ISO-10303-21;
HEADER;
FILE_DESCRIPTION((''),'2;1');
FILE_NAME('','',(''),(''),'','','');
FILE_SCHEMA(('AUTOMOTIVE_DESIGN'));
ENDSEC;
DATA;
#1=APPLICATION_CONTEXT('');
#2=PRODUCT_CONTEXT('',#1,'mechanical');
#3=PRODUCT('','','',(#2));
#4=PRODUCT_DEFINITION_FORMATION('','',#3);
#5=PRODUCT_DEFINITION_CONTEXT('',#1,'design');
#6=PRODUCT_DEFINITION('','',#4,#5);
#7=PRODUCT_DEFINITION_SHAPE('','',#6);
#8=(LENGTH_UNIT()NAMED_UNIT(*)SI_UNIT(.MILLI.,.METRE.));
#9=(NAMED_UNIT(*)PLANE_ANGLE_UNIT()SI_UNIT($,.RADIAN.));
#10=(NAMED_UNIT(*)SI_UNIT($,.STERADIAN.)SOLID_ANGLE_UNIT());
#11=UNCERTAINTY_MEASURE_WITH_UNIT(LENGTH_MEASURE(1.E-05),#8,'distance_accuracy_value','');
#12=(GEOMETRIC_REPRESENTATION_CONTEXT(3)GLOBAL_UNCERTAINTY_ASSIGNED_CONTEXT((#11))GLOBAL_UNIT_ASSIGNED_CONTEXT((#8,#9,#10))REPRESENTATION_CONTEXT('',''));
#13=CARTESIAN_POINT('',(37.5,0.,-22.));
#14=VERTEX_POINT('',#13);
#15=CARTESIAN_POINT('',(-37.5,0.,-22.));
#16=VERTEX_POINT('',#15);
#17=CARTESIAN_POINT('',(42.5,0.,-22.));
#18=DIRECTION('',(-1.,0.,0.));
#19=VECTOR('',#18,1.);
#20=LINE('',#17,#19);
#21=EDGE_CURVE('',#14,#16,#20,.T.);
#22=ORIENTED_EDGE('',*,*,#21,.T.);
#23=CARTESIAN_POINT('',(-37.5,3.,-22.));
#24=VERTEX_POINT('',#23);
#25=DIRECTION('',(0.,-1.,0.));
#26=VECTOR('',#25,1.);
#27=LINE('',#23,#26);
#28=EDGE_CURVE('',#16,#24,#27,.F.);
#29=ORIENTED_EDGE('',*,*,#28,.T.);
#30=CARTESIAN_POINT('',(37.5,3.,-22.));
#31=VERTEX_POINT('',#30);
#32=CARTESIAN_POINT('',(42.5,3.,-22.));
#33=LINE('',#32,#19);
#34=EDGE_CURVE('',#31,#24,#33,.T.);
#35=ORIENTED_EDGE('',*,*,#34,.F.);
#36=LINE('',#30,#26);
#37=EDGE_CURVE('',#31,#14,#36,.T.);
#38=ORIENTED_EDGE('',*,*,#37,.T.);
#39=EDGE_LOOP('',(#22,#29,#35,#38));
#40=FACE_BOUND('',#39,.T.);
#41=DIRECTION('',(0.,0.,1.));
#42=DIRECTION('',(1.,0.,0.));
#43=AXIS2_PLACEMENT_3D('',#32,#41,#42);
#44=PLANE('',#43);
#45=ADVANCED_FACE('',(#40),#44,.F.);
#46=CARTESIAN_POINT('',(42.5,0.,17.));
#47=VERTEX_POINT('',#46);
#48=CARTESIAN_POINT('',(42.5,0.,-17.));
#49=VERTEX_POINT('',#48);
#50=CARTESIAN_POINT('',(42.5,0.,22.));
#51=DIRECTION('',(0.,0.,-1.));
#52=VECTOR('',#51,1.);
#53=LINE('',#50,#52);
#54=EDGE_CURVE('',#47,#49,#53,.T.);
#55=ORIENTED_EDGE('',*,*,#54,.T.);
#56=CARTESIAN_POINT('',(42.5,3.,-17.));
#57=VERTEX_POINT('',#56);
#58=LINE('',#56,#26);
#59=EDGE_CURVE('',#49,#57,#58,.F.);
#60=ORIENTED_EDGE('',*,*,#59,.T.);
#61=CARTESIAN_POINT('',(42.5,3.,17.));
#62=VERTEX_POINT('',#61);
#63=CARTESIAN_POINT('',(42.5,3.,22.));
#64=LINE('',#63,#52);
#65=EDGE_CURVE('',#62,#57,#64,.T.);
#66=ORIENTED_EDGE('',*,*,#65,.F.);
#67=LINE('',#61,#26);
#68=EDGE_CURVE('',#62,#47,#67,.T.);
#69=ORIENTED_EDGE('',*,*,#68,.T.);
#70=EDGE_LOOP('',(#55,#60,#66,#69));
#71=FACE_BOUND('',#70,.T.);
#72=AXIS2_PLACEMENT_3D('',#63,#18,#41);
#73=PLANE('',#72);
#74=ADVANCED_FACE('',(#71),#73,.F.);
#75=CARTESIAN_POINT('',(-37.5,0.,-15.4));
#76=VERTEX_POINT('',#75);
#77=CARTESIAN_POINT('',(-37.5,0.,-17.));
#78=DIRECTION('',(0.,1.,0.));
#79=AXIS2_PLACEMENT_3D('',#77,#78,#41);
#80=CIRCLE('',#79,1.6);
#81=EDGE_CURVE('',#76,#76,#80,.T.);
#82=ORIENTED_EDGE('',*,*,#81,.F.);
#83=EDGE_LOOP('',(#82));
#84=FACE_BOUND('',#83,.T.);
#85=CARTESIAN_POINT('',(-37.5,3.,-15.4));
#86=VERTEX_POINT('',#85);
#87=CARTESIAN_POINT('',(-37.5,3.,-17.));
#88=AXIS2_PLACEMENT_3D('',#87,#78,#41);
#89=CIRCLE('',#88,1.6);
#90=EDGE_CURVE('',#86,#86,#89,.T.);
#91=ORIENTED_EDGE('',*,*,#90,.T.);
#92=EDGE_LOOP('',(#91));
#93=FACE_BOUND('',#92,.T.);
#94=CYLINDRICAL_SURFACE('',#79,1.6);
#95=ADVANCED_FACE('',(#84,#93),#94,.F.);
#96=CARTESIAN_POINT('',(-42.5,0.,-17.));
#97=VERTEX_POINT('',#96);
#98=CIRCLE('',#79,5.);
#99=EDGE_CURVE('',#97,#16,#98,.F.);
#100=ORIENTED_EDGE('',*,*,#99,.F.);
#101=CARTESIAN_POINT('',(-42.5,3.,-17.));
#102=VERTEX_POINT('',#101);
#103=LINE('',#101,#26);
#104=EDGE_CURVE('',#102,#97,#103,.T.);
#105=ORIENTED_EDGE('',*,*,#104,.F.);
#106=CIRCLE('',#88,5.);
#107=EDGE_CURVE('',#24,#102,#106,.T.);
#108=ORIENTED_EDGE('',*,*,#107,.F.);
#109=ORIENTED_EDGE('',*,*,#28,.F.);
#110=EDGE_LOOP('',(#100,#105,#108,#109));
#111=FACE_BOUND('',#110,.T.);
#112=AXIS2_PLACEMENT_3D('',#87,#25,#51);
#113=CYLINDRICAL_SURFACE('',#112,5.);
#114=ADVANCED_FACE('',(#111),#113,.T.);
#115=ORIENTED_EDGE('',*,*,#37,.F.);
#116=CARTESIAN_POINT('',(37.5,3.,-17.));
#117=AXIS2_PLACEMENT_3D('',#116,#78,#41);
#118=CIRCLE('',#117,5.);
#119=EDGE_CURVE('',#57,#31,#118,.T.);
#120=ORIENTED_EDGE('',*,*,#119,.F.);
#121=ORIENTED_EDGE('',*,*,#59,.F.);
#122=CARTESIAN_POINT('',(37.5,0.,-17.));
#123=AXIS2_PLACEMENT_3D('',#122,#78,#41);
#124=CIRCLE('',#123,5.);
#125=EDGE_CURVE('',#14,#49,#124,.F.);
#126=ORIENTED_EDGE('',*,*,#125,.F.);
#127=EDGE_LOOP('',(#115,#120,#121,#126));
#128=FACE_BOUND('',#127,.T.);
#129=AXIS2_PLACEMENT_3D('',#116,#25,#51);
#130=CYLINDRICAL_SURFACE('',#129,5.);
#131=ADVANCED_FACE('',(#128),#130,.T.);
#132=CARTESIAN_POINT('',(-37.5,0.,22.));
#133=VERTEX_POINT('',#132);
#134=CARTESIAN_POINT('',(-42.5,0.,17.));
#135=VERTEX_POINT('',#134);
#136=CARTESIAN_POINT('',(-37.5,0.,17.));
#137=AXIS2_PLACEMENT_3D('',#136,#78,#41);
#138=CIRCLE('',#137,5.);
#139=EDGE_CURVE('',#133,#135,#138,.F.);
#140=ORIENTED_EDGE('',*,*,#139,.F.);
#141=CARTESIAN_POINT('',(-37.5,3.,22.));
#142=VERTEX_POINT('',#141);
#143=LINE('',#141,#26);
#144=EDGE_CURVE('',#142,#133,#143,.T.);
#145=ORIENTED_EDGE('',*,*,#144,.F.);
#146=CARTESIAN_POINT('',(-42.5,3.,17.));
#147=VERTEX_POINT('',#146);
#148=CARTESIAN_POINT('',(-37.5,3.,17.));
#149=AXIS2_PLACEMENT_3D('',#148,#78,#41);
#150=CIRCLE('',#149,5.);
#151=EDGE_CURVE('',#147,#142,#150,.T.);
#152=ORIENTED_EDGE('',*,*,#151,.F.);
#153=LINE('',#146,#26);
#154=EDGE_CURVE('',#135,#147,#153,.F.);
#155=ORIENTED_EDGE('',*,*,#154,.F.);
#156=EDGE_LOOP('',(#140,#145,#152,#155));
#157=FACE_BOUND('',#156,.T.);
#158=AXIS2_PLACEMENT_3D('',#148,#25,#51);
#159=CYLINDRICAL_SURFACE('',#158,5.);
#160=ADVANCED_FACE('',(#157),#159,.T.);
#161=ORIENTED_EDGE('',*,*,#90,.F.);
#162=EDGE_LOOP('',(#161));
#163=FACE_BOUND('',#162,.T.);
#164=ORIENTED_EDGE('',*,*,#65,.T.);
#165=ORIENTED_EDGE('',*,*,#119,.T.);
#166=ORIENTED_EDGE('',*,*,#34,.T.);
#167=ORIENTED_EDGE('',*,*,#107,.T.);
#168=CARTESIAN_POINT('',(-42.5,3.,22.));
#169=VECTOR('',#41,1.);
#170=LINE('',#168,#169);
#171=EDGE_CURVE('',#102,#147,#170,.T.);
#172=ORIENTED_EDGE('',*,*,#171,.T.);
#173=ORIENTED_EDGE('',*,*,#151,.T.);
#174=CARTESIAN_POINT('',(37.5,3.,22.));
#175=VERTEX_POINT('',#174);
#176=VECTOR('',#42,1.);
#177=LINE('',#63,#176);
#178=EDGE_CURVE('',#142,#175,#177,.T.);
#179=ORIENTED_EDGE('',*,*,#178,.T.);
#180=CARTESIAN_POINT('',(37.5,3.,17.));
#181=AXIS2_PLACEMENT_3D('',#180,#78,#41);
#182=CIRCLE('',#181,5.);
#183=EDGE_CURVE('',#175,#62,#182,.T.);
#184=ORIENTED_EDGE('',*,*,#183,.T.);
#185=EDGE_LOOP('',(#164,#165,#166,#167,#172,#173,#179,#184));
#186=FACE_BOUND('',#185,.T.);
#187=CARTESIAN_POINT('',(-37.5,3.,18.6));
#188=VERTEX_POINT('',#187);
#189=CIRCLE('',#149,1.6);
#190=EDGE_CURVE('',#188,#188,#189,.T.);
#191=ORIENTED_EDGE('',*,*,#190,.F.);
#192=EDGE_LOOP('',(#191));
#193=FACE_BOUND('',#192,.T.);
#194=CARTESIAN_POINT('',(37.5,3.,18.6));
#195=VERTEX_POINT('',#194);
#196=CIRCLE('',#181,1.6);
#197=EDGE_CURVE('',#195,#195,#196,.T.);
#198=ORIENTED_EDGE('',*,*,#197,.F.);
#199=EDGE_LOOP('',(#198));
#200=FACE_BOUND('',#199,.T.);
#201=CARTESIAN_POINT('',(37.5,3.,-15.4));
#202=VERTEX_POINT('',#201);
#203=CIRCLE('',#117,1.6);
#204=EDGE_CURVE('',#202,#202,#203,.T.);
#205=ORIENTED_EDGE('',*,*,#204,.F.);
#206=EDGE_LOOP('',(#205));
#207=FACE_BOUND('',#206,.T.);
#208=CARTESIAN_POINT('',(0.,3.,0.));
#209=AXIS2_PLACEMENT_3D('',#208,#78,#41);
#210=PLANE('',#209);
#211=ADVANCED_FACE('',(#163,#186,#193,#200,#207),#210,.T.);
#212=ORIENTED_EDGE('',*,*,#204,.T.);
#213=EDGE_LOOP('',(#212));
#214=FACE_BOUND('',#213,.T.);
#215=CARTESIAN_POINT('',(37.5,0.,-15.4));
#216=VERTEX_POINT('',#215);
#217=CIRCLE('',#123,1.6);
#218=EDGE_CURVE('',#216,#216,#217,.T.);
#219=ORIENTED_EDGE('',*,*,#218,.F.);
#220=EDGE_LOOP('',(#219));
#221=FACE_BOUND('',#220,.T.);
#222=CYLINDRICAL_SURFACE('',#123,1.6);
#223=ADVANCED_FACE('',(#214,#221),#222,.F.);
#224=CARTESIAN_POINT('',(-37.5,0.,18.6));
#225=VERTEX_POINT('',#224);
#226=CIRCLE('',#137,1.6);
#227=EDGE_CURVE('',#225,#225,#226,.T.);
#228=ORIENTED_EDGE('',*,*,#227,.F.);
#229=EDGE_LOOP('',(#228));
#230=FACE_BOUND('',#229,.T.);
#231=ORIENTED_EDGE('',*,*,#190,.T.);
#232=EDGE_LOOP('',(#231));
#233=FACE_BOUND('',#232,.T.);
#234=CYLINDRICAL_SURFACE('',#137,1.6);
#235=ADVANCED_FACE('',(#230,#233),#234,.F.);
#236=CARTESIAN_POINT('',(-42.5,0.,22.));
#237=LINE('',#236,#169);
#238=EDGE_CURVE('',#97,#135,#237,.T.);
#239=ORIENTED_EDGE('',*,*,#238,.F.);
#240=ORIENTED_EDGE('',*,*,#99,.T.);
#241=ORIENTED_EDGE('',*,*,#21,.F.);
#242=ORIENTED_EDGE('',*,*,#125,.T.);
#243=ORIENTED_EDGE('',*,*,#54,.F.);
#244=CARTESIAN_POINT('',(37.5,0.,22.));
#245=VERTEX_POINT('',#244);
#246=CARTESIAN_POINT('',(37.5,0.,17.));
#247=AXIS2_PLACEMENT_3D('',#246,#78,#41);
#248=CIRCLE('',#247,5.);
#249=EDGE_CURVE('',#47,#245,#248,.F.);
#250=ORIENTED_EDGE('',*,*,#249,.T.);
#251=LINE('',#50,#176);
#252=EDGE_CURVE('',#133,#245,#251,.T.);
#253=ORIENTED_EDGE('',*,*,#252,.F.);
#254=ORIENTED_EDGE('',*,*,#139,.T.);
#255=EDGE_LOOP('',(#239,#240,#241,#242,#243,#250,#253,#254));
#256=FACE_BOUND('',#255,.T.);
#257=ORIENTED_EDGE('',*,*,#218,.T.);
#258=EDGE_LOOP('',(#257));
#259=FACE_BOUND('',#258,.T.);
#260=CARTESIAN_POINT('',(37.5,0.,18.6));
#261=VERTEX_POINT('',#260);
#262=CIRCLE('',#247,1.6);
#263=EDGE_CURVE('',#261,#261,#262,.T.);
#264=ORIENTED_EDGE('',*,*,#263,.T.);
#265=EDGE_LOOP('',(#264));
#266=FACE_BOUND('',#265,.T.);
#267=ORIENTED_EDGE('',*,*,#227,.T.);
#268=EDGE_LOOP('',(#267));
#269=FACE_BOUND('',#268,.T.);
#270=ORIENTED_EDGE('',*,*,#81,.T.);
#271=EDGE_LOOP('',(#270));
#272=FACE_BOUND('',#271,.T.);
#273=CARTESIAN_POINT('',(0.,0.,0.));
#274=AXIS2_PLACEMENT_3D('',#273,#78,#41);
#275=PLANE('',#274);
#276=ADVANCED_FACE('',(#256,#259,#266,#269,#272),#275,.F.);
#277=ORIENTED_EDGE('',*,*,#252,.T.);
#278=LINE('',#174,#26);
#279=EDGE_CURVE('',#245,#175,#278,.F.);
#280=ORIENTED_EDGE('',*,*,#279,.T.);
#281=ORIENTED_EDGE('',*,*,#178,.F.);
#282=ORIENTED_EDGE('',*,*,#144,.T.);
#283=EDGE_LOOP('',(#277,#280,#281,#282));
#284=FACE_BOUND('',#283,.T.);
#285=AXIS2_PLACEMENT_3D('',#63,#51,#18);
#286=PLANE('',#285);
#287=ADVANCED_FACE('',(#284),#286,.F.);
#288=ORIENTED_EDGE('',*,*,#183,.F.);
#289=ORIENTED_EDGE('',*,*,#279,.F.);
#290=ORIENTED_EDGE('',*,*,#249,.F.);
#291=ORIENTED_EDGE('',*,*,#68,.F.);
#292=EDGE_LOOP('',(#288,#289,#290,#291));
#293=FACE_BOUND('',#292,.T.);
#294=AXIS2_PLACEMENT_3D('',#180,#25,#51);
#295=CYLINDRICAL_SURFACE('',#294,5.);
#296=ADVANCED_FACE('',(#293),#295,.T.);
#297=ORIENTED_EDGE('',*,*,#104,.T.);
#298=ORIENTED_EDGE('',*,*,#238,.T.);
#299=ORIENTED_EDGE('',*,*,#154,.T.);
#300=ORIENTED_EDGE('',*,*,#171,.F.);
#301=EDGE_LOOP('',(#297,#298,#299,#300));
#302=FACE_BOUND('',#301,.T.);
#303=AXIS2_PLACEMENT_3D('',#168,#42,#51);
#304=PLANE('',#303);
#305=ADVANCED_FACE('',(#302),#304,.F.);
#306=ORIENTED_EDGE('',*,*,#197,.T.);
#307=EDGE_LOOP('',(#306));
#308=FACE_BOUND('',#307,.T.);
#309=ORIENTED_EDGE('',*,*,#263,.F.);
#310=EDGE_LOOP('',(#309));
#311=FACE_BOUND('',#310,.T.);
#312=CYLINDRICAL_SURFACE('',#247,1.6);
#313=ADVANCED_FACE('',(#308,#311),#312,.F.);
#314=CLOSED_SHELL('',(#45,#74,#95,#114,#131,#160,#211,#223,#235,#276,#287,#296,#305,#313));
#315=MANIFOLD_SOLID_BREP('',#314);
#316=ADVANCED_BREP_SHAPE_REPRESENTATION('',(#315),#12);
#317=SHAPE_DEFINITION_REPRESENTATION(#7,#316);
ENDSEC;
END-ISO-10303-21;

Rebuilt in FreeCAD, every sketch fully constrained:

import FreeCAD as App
import Part
import Sketcher
from FreeCAD import Vector


def edges_at(feature, points):
    """Names of the edges that pass closest to the given points."""
    edges = feature.Shape.Edges
    near = lambda p: min(range(len(edges)), key=lambda i: edges[i].distToShape(Part.Vertex(*p))[0])
    return sorted({f"Edge{near(p) + 1}" for p in points})

doc = App.newDocument("Part")
body = doc.addObject("PartDesign::Body", "Body")

# Sketch on XZ plane
sketch1 = doc.addObject("Sketcher::SketchObject", "Sketch")
body.addObject(sketch1)
sketch1.AttachmentSupport = (doc.XZ_Plane, [""])
sketch1.MapMode = "FlatFace"
sketch1.addGeometry(Part.LineSegment(Vector(-42, -22, 0), Vector(-42, 22, 0)), False)
sketch1.addGeometry(Part.LineSegment(Vector(-42, 22, 0), Vector(42, 22, 0)), False)
sketch1.addGeometry(Part.LineSegment(Vector(42, 22, 0), Vector(42, -22, 0)), False)
sketch1.addGeometry(Part.LineSegment(Vector(42, -22, 0), Vector(-42, -22, 0)), False)
sketch1.addConstraint(Sketcher.Constraint("Coincident", 0, 2, 1, 1))
sketch1.addConstraint(Sketcher.Constraint("Coincident", 1, 2, 2, 1))
sketch1.addConstraint(Sketcher.Constraint("Coincident", 2, 2, 3, 1))
sketch1.addConstraint(Sketcher.Constraint("Coincident", 3, 2, 0, 1))
sketch1.addConstraint(Sketcher.Constraint("Vertical", 0))
sketch1.addConstraint(Sketcher.Constraint("Horizontal", 1))
sketch1.addConstraint(Sketcher.Constraint("Vertical", 2))
sketch1.addConstraint(Sketcher.Constraint("Horizontal", 3))
sketch1.addConstraint(Sketcher.Constraint("Symmetric", 0, 2, 2, 2, -1, 1))
sketch1.addConstraint(Sketcher.Constraint("DistanceX", 1, 1, 1, 2, 85.0))
sketch1.addConstraint(Sketcher.Constraint("DistanceY", 0, 1, 0, 2, 44.0))
pad1 = doc.addObject("PartDesign::Pad", "Pad")
body.addObject(pad1)
pad1.Profile = sketch1
pad1.Length = 3
pad1.Reversed = True

# Sketch on XZ plane
sketch2 = doc.addObject("Sketcher::SketchObject", "Sketch001")
body.addObject(sketch2)
sketch2.AttachmentSupport = (doc.XZ_Plane, [""])
sketch2.MapMode = "FlatFace"
sketch2.AttachmentOffset = App.Placement(Vector(0, 0, -3), App.Rotation())
sketch2.addGeometry(Part.Circle(Vector(-37.5, -17, 0), Vector(0, 0, 1), 1.6), False)
sketch2.addGeometry(Part.Circle(Vector(-37.5, 17, 0), Vector(0, 0, 1), 1.6), False)
sketch2.addGeometry(Part.Circle(Vector(37.5, -17, 0), Vector(0, 0, 1), 1.6), False)
sketch2.addGeometry(Part.Circle(Vector(37.5, 17, 0), Vector(0, 0, 1), 1.6), False)
sketch2.addConstraint(Sketcher.Constraint("Equal", 0, 1))
sketch2.addConstraint(Sketcher.Constraint("Equal", 1, 2))
sketch2.addConstraint(Sketcher.Constraint("Equal", 2, 3))
sketch2.addConstraint(Sketcher.Constraint("Symmetric", 1, 3, 2, 3, -1, 1))
sketch2.addConstraint(Sketcher.Constraint("Symmetric", 0, 3, 3, 3, -1, 1))
sketch2.addConstraint(Sketcher.Constraint("Symmetric", 0, 3, 2, 3, -2))
sketch2.addConstraint(Sketcher.Constraint("Diameter", 0, 3.2))
sketch2.addConstraint(Sketcher.Constraint("DistanceY", 0, 3, -1, 1, 17.0))
sketch2.addConstraint(Sketcher.Constraint("DistanceX", 0, 3, 2, 3, 75.0))
pocket1 = doc.addObject("PartDesign::Pocket", "Pocket")
body.addObject(pocket1)
pocket1.Profile = sketch2
pocket1.Type = "ThroughAll"
pocket1.Reversed = True
doc.recompute()

fillet = doc.addObject("PartDesign::Fillet", "Fillet")
body.addObject(fillet)
fillet.Base = (pocket1, edges_at(pocket1, [
    (-42.5, 1.5, -22),
    (42.5, 1.5, -22),
    (42.5, 1.5, 22),
    (-42.5, 1.5, 22),
]))
fillet.Radius = 5

doc.recompute()
